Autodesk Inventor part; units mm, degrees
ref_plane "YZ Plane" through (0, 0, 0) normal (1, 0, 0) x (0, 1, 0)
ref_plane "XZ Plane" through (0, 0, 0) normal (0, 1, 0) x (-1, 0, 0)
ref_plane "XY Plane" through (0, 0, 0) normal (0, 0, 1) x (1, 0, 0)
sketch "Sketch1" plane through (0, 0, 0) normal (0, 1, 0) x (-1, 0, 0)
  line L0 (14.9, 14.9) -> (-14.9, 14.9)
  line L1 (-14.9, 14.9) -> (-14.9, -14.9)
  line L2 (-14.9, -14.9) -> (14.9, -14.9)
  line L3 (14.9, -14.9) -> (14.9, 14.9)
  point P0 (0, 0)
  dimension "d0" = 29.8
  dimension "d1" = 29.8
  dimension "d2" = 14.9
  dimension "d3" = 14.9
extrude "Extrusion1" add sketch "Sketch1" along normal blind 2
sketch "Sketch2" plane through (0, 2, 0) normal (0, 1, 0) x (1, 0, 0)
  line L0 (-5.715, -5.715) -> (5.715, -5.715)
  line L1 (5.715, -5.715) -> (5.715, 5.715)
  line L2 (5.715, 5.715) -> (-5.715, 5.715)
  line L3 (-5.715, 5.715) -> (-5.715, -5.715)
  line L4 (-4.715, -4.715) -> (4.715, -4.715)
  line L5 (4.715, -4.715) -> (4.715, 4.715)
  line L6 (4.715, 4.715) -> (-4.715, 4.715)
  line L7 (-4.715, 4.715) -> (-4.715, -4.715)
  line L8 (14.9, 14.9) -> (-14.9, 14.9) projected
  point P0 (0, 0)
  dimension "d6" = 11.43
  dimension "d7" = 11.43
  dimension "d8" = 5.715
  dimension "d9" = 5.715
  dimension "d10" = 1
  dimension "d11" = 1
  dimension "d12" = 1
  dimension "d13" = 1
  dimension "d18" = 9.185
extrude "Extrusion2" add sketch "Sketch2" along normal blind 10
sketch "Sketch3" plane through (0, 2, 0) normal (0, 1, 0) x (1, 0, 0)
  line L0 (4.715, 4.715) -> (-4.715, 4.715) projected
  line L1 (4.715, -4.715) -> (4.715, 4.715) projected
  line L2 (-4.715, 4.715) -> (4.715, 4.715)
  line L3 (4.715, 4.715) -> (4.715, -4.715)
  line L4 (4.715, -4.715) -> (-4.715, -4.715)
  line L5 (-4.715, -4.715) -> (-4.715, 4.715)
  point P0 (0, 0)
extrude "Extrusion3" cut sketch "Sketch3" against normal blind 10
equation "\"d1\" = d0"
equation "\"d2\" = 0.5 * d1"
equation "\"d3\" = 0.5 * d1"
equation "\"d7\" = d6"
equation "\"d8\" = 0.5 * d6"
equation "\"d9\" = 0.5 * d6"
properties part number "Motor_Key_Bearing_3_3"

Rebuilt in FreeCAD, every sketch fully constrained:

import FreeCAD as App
import Part
import Sketcher
from FreeCAD import Vector
Q = App.Units.Quantity


def add_polygon(sketch, points):
    """Adds a closed chain of lines whose ends are joined by coincident constraints."""
    first, n = sketch.GeometryCount, len(points)
    for a, b in zip(points, points[1:] + points[:1]):
        sketch.addGeometry(Part.LineSegment(App.Vector(*a, 0), App.Vector(*b, 0)), False)
    for i in range(n):
        sketch.addConstraint(Sketcher.Constraint("Coincident", first + i, 2, first + (i + 1) % n, 1))

doc = App.newDocument("Part")
params = doc.addObject("Spreadsheet::Sheet", "Params")
for row, (alias, value) in enumerate([
    ("sketch1_width", "29.8 mm"),
    ("pad1_length", "2 mm"),
    ("sketch2_width", "11.43 mm"),
    ("pad2_length", "10 mm"),
    ("sketch3_width", "9.43 mm"),
    ("pocket1_length", "10 mm"),
], start=1):
    params.set(f"A{row}", alias)
    params.set(f"B{row}", "=" + value)
    params.setAlias(f"B{row}", alias)

body = doc.addObject("PartDesign::Body", "Body")

sketch1 = doc.addObject("Sketcher::SketchObject", "Sketch")
body.addObject(sketch1)
sketch1.AttachmentSupport = (doc.XZ_Plane, [""])
sketch1.MapMode = "FlatFace"
add_polygon(sketch1, [(-15, -15), (-15, 15), (15, 15), (15, -15)])
sketch1.addConstraint([
    Sketcher.Constraint("Vertical", 0),
    Sketcher.Constraint("Horizontal", 1),
    Sketcher.Constraint("Vertical", 2),
    Sketcher.Constraint("Horizontal", 3),
    Sketcher.Constraint("Symmetric", 0, 2, 2, 2, -1, 1),
    Sketcher.Constraint("Equal", 3, 0),
    Sketcher.Constraint("DistanceX", 1, 1, 1, 2, Q("29.8 mm")),
])
sketch1.setExpression("Constraints[10]", "Params.sketch1_width")
pad1 = doc.addObject("PartDesign::Pad", "Pad")
body.addObject(pad1)
pad1.Profile = sketch1
pad1.setExpression("Length", "Params.pad1_length")
pad1.Reversed = True

sketch2 = doc.addObject("Sketcher::SketchObject", "Sketch001")
body.addObject(sketch2)
sketch2.AttachmentSupport = (doc.XZ_Plane, [""])
sketch2.MapMode = "FlatFace"
sketch2.AttachmentOffset = App.Placement(Vector(0, 0, -2), App.Rotation())
add_polygon(sketch2, [(-6, -6), (-6, 6), (6, 6), (6, -6)])
add_polygon(sketch2, [(5, 5), (-5, 5), (-5, -5), (5, -5)])
sketch2.addConstraint([
    Sketcher.Constraint("Vertical", 0),
    Sketcher.Constraint("Horizontal", 1),
    Sketcher.Constraint("Vertical", 2),
    Sketcher.Constraint("Horizontal", 3),
    Sketcher.Constraint("Horizontal", 4),
    Sketcher.Constraint("Vertical", 5),
    Sketcher.Constraint("Horizontal", 6),
    Sketcher.Constraint("Vertical", 7),
    Sketcher.Constraint("Symmetric", 0, 2, 2, 2, -1, 1),
    Sketcher.Constraint("Symmetric", 4, 2, 6, 2, -1, 1),
    Sketcher.Constraint("Equal", 3, 0),
    Sketcher.Constraint("Equal", 6, 5),
    Sketcher.Constraint("DistanceX", 0, 2, 4, 2, Q("1 mm")),
    Sketcher.Constraint("DistanceX", 1, 1, 1, 2, Q("11.43 mm")),
])
sketch2.setExpression("Constraints[21]", "Params.sketch2_width")
pad2 = doc.addObject("PartDesign::Pad", "Pad001")
body.addObject(pad2)
pad2.Profile = sketch2
pad2.setExpression("Length", "Params.pad2_length")
pad2.Reversed = True

sketch3 = doc.addObject("Sketcher::SketchObject", "Sketch002")
body.addObject(sketch3)
sketch3.AttachmentSupport = (doc.XZ_Plane, [""])
sketch3.MapMode = "FlatFace"
sketch3.AttachmentOffset = App.Placement(Vector(0, 0, -2), App.Rotation())
add_polygon(sketch3, [(5, 5), (5, -5), (-5, -5), (-5, 5)])
sketch3.addConstraint([
    Sketcher.Constraint("Vertical", 0),
    Sketcher.Constraint("Horizontal", 1),
    Sketcher.Constraint("Vertical", 2),
    Sketcher.Constraint("Horizontal", 3),
    Sketcher.Constraint("Symmetric", 0, 2, 2, 2, -1, 1),
    Sketcher.Constraint("Equal", 3, 0),
    Sketcher.Constraint("DistanceX", 1, 2, 1, 1, Q("9.43 mm")),
])
sketch3.setExpression("Constraints[10]", "Params.sketch3_width")
pocket1 = doc.addObject("PartDesign::Pocket", "Pocket")
body.addObject(pocket1)
pocket1.Profile = sketch3
pocket1.setExpression("Length", "Params.pocket1_length")
pocket1.Reversed = True

doc.recompute()
